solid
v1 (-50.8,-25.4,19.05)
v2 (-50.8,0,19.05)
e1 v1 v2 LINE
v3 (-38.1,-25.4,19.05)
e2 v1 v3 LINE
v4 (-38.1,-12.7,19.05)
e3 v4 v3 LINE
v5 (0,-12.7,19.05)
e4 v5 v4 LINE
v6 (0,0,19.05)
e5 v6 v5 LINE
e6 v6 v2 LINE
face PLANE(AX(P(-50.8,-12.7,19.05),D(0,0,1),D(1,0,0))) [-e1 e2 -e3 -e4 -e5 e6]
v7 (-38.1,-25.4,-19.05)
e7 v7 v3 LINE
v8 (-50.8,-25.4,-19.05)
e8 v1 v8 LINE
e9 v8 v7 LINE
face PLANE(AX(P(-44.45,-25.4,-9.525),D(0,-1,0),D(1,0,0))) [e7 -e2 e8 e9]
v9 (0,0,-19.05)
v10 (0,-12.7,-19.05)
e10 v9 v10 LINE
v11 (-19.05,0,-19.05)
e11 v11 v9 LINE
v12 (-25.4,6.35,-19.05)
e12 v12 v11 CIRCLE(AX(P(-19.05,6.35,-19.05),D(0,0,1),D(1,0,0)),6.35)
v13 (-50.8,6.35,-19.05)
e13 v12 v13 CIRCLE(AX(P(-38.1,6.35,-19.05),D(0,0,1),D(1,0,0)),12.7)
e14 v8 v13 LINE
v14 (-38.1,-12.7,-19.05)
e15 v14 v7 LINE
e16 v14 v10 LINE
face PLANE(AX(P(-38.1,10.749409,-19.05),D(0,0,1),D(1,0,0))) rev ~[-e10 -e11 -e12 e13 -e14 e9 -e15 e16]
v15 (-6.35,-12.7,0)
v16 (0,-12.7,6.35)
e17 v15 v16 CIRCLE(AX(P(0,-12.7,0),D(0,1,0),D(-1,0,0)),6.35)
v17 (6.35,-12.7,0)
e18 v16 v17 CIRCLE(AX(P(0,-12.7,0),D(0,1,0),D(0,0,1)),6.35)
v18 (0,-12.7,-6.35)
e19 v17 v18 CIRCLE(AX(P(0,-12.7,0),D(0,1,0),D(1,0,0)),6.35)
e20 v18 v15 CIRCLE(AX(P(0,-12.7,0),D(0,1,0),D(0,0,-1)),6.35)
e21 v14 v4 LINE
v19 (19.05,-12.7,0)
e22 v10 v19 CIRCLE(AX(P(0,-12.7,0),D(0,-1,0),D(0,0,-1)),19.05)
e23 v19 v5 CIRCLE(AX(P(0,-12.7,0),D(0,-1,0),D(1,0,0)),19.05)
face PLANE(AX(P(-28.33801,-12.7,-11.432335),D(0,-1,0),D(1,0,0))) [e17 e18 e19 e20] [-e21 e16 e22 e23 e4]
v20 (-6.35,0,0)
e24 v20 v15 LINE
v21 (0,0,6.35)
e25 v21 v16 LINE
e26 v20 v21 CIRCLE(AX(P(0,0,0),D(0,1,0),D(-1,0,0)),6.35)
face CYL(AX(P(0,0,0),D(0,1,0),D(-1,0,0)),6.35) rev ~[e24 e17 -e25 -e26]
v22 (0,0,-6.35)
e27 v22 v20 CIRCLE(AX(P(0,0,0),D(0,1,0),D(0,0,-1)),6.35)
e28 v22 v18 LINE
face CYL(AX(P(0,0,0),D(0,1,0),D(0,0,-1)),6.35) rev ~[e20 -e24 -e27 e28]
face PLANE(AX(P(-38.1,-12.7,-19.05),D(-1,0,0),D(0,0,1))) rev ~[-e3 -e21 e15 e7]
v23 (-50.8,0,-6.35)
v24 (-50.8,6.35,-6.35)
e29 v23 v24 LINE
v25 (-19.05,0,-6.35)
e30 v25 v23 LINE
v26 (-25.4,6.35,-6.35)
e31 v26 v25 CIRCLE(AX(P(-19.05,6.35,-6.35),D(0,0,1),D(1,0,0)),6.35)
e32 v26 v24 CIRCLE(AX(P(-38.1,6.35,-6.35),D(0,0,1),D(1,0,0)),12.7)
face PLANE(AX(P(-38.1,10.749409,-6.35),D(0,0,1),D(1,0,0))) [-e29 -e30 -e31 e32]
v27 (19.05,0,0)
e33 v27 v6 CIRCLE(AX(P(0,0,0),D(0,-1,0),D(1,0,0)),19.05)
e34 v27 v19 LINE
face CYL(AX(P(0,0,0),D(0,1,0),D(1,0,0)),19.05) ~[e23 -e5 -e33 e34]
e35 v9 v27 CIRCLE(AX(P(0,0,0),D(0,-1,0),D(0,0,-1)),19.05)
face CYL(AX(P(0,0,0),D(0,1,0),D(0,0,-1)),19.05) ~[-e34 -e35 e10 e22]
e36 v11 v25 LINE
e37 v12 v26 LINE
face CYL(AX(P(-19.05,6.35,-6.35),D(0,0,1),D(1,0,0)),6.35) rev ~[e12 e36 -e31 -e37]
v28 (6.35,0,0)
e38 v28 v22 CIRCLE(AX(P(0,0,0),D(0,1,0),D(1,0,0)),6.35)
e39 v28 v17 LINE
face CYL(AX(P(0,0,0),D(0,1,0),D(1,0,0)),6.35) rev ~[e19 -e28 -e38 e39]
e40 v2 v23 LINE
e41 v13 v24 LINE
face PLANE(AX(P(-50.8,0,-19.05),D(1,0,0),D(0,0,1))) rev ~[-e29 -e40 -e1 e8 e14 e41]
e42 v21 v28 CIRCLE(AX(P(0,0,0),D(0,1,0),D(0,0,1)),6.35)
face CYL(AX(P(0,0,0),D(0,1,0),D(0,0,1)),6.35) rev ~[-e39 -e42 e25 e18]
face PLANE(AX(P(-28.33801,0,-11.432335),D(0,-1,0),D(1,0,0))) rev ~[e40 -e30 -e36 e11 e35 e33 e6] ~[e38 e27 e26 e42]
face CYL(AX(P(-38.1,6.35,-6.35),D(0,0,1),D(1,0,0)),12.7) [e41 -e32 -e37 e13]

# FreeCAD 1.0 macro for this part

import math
import FreeCAD as App
import Part
import Sketcher

V = App.Vector
Q = App.Units.Quantity

doc = App.newDocument("Part")
body = doc.addObject("PartDesign::Body", "Body")

sketch1 = doc.addObject("Sketcher::SketchObject", "Sketch")
body.addObject(sketch1)
sketch1.AttachmentSupport = (doc.XZ_Plane, [""])
sketch1.MapMode = "FlatFace"
sketch1.addGeometry([
    Part.ArcOfCircle(Part.Circle(V(0, 0, 0), V(0, 0, 1), 19.05), math.radians(0), math.radians(90)),
    Part.LineSegment(V(0, 19.05, 0), V(-50.8, 19.05, 0)),
    Part.LineSegment(V(-50.8, 19.05, 0), V(-50.8, -19.05, 0)),
    Part.LineSegment(V(-50.8, -19.05, 0), V(0, -19.05, 0)),
    Part.ArcOfCircle(Part.Circle(V(0, 0, 0), V(0, 0, 1), 19.05), math.radians(-90), math.radians(0)),
    Part.ArcOfCircle(Part.Circle(V(0, 0, 0), V(0, 0, 1), 6.35), math.radians(90), math.radians(180)),
    Part.ArcOfCircle(Part.Circle(V(0, 0, 0), V(0, 0, 1), 6.35), math.radians(0), math.radians(90)),
    Part.ArcOfCircle(Part.Circle(V(0, 0, 0), V(0, 0, 1), 6.35), math.radians(-90), math.radians(0)),
    Part.ArcOfCircle(Part.Circle(V(0, 0, 0), V(0, 0, 1), 6.35), math.radians(180), math.radians(270)),
], False)
sketch1.addConstraint([
    Sketcher.Constraint("Tangent", 0, 2, 1, 1),
    Sketcher.Constraint("Coincident", 1, 2, 2, 1),
    Sketcher.Constraint("Coincident", 2, 2, 3, 1),
    Sketcher.Constraint("Tangent", 3, 2, 4, 1),
    Sketcher.Constraint("Tangent", 4, 2, 0, 1),
    Sketcher.Constraint("Tangent", 5, 1, 6, 2),
    Sketcher.Constraint("Tangent", 6, 1, 7, 2),
    Sketcher.Constraint("Tangent", 7, 1, 8, 2),
    Sketcher.Constraint("Tangent", 8, 1, 5, 2),
    Sketcher.Constraint("Horizontal", 1),
    Sketcher.Constraint("Vertical", 2),
    Sketcher.Constraint("Horizontal", 3),
    Sketcher.Constraint("Coincident", 0, 3, -1, 1),
    Sketcher.Constraint("Coincident", 5, 3, -1, 1),
    Sketcher.Constraint("Equal", 0, 4),
    Sketcher.Constraint("Equal", 5, 6),
    Sketcher.Constraint("PointOnObject", 4, 2, -1),
    Sketcher.Constraint("PointOnObject", 5, 1, -2),
    Sketcher.Constraint("PointOnObject", 6, 1, -1),
    Sketcher.Constraint("PointOnObject", 7, 1, -2),
    Sketcher.Constraint("PointOnObject", 8, 1, -1),
    Sketcher.Constraint("DistanceX", 1, 2, 1, 1, Q("2 in")),
    Sketcher.Constraint("Radius", 0, Q("0.75 in")),
    Sketcher.Constraint("Radius", 5, Q("0.25 in")),
])
pad1 = doc.addObject("PartDesign::Pad", "Pad")
body.addObject(pad1)
pad1.Profile = sketch1
pad1.Length = Q("0.5 in")

sketch2 = doc.addObject("Sketcher::SketchObject", "Sketch001")
body.addObject(sketch2)
sketch2.AttachmentSupport = (doc.XZ_Plane, [""])
sketch2.MapMode = "FlatFace"
sketch2.AttachmentOffset = App.Placement(V(0, 0, 0.5 * 25.4), App.Rotation())
sketch2.addGeometry([
    Part.LineSegment(V(-50.8, -19.05, 0), V(-38.1, -19.05, 0)),
    Part.LineSegment(V(-38.1, -19.05, 0), V(-38.1, 19.05, 0)),
    Part.LineSegment(V(-38.1, 19.05, 0), V(-50.8, 19.05, 0)),
    Part.LineSegment(V(-50.8, 19.05, 0), V(-50.8, -19.05, 0)),
], False)
sketch2.addConstraint([
    Sketcher.Constraint("Coincident", 0, 2, 1, 1),
    Sketcher.Constraint("Coincident", 1, 2, 2, 1),
    Sketcher.Constraint("Coincident", 2, 2, 3, 1),
    Sketcher.Constraint("Coincident", 3, 2, 0, 1),
    Sketcher.Constraint("Horizontal", 0),
    Sketcher.Constraint("Vertical", 1),
    Sketcher.Constraint("Horizontal", 2),
    Sketcher.Constraint("Vertical", 3),
    Sketcher.Constraint("DistanceX", 0, 1, 0, 2, Q("0.5 in")),
    Sketcher.Constraint("DistanceY", 1, 1, 1, 2, Q("1.5 in")),
    Sketcher.Constraint("DistanceX", 2, 2, -1, 1, Q("2 in")),
    Sketcher.Constraint("DistanceY", 0, 2, -1, 1, Q("0.75 in")),
])
pad2 = doc.addObject("PartDesign::Pad", "Pad001")
body.addObject(pad2)
pad2.Profile = sketch2
pad2.Length = Q("0.5 in")

sketch3 = doc.addObject("Sketcher::SketchObject", "Sketch002")
body.addObject(sketch3)
sketch3.AttachmentSupport = (doc.XZ_Plane, [""])
sketch3.MapMode = "FlatFace"
sketch3.addGeometry([
    Part.LineSegment(V(-19.05, -6.35, 0), V(-19.05, -19.05, 0)),
    Part.LineSegment(V(-19.05, -19.05, 0), V(-50.8, -19.05, 0)),
    Part.LineSegment(V(-50.8, -19.05, 0), V(-50.8, -6.35, 0)),
    Part.LineSegment(V(-50.8, -6.35, 0), V(-19.05, -6.35, 0)),
], False)
sketch3.addConstraint([
    Sketcher.Constraint("Coincident", 0, 2, 1, 1),
    Sketcher.Constraint("Coincident", 1, 2, 2, 1),
    Sketcher.Constraint("Coincident", 2, 2, 3, 1),
    Sketcher.Constraint("Coincident", 3, 2, 0, 1),
    Sketcher.Constraint("Vertical", 0),
    Sketcher.Constraint("Horizontal", 1),
    Sketcher.Constraint("Vertical", 2),
    Sketcher.Constraint("Horizontal", 3),
    Sketcher.Constraint("DistanceY", 0, 2, 0, 1, Q("0.5 in")),
    Sketcher.Constraint("DistanceX", 1, 2, -1, 1, Q("2 in")),
    Sketcher.Constraint("DistanceX", 1, 2, 1, 1, Q("1.25 in")),
    Sketcher.Constraint("DistanceY", 0, 2, -1, 1, Q("0.75 in")),
])
pad3 = doc.addObject("PartDesign::Pad", "Pad002")
body.addObject(pad3)
pad3.Profile = sketch3
pad3.Length = Q("0.25 in")
pad3.Reversed = True

sketch4 = doc.addObject("Sketcher::SketchObject", "Sketch003")
body.addObject(sketch4)
sketch4.AttachmentSupport = (doc.XY_Plane, [""])
sketch4.MapMode = "FlatFace"
sketch4.AttachmentOffset = App.Placement(V(0, 0, -0.25 * 25.4), App.Rotation())
sketch4.addGeometry(Part.Circle(V(-19.05, 6.35, 0), V(0, 0, 1), 6.35), False)
sketch4.addConstraint([
    Sketcher.Constraint("Diameter", 0, Q("0.5 in")),
    Sketcher.Constraint("DistanceX", 0, 3, -1, 1, Q("0.75 in")),
    Sketcher.Constraint("DistanceY", -1, 1, 0, 3, Q("0.25 in")),
])
pocket1 = doc.addObject("PartDesign::Pocket", "Pocket")
body.addObject(pocket1)
pocket1.Profile = sketch4
pocket1.Length = Q("1 in")

sketch5 = doc.addObject("Sketcher::SketchObject", "Sketch004")
body.addObject(sketch5)
sketch5.AttachmentSupport = (doc.XY_Plane, [""])
sketch5.MapMode = "FlatFace"
sketch5.AttachmentOffset = App.Placement(V(0, 0, -0.25 * 25.4), App.Rotation())
sketch5.addGeometry([
    Part.ArcOfCircle(Part.Circle(V(-38.1, 6.35, 0), V(0, 0, 1), 12.7), math.radians(0), math.radians(180)),
    Part.LineSegment(V(-50.8, 6.35, 0), V(-25.4, 6.35, 0)),
], False)
sketch5.addConstraint([
    Sketcher.Constraint("Coincident", 0, 1, 1, 2),
    Sketcher.Constraint("Coincident", 1, 1, 0, 2),
    Sketcher.Constraint("Horizontal", 1),
    Sketcher.Constraint("Radius", 0, Q("0.5 in")),
    Sketcher.Constraint("DistanceX", 0, 1, -1, 1, Q("1 in")),
    Sketcher.Constraint("DistanceY", -1, 1, 0, 3, Q("0.25 in")),
    Sketcher.Constraint("DistanceY", -1, 1, 0, 1, Q("0.25 in")),
])
pad4 = doc.addObject("PartDesign::Pad", "Pad003")
body.addObject(pad4)
pad4.Profile = sketch5
pad4.Length = Q("0.5 in")
pad4.Reversed = True

doc.recompute()
